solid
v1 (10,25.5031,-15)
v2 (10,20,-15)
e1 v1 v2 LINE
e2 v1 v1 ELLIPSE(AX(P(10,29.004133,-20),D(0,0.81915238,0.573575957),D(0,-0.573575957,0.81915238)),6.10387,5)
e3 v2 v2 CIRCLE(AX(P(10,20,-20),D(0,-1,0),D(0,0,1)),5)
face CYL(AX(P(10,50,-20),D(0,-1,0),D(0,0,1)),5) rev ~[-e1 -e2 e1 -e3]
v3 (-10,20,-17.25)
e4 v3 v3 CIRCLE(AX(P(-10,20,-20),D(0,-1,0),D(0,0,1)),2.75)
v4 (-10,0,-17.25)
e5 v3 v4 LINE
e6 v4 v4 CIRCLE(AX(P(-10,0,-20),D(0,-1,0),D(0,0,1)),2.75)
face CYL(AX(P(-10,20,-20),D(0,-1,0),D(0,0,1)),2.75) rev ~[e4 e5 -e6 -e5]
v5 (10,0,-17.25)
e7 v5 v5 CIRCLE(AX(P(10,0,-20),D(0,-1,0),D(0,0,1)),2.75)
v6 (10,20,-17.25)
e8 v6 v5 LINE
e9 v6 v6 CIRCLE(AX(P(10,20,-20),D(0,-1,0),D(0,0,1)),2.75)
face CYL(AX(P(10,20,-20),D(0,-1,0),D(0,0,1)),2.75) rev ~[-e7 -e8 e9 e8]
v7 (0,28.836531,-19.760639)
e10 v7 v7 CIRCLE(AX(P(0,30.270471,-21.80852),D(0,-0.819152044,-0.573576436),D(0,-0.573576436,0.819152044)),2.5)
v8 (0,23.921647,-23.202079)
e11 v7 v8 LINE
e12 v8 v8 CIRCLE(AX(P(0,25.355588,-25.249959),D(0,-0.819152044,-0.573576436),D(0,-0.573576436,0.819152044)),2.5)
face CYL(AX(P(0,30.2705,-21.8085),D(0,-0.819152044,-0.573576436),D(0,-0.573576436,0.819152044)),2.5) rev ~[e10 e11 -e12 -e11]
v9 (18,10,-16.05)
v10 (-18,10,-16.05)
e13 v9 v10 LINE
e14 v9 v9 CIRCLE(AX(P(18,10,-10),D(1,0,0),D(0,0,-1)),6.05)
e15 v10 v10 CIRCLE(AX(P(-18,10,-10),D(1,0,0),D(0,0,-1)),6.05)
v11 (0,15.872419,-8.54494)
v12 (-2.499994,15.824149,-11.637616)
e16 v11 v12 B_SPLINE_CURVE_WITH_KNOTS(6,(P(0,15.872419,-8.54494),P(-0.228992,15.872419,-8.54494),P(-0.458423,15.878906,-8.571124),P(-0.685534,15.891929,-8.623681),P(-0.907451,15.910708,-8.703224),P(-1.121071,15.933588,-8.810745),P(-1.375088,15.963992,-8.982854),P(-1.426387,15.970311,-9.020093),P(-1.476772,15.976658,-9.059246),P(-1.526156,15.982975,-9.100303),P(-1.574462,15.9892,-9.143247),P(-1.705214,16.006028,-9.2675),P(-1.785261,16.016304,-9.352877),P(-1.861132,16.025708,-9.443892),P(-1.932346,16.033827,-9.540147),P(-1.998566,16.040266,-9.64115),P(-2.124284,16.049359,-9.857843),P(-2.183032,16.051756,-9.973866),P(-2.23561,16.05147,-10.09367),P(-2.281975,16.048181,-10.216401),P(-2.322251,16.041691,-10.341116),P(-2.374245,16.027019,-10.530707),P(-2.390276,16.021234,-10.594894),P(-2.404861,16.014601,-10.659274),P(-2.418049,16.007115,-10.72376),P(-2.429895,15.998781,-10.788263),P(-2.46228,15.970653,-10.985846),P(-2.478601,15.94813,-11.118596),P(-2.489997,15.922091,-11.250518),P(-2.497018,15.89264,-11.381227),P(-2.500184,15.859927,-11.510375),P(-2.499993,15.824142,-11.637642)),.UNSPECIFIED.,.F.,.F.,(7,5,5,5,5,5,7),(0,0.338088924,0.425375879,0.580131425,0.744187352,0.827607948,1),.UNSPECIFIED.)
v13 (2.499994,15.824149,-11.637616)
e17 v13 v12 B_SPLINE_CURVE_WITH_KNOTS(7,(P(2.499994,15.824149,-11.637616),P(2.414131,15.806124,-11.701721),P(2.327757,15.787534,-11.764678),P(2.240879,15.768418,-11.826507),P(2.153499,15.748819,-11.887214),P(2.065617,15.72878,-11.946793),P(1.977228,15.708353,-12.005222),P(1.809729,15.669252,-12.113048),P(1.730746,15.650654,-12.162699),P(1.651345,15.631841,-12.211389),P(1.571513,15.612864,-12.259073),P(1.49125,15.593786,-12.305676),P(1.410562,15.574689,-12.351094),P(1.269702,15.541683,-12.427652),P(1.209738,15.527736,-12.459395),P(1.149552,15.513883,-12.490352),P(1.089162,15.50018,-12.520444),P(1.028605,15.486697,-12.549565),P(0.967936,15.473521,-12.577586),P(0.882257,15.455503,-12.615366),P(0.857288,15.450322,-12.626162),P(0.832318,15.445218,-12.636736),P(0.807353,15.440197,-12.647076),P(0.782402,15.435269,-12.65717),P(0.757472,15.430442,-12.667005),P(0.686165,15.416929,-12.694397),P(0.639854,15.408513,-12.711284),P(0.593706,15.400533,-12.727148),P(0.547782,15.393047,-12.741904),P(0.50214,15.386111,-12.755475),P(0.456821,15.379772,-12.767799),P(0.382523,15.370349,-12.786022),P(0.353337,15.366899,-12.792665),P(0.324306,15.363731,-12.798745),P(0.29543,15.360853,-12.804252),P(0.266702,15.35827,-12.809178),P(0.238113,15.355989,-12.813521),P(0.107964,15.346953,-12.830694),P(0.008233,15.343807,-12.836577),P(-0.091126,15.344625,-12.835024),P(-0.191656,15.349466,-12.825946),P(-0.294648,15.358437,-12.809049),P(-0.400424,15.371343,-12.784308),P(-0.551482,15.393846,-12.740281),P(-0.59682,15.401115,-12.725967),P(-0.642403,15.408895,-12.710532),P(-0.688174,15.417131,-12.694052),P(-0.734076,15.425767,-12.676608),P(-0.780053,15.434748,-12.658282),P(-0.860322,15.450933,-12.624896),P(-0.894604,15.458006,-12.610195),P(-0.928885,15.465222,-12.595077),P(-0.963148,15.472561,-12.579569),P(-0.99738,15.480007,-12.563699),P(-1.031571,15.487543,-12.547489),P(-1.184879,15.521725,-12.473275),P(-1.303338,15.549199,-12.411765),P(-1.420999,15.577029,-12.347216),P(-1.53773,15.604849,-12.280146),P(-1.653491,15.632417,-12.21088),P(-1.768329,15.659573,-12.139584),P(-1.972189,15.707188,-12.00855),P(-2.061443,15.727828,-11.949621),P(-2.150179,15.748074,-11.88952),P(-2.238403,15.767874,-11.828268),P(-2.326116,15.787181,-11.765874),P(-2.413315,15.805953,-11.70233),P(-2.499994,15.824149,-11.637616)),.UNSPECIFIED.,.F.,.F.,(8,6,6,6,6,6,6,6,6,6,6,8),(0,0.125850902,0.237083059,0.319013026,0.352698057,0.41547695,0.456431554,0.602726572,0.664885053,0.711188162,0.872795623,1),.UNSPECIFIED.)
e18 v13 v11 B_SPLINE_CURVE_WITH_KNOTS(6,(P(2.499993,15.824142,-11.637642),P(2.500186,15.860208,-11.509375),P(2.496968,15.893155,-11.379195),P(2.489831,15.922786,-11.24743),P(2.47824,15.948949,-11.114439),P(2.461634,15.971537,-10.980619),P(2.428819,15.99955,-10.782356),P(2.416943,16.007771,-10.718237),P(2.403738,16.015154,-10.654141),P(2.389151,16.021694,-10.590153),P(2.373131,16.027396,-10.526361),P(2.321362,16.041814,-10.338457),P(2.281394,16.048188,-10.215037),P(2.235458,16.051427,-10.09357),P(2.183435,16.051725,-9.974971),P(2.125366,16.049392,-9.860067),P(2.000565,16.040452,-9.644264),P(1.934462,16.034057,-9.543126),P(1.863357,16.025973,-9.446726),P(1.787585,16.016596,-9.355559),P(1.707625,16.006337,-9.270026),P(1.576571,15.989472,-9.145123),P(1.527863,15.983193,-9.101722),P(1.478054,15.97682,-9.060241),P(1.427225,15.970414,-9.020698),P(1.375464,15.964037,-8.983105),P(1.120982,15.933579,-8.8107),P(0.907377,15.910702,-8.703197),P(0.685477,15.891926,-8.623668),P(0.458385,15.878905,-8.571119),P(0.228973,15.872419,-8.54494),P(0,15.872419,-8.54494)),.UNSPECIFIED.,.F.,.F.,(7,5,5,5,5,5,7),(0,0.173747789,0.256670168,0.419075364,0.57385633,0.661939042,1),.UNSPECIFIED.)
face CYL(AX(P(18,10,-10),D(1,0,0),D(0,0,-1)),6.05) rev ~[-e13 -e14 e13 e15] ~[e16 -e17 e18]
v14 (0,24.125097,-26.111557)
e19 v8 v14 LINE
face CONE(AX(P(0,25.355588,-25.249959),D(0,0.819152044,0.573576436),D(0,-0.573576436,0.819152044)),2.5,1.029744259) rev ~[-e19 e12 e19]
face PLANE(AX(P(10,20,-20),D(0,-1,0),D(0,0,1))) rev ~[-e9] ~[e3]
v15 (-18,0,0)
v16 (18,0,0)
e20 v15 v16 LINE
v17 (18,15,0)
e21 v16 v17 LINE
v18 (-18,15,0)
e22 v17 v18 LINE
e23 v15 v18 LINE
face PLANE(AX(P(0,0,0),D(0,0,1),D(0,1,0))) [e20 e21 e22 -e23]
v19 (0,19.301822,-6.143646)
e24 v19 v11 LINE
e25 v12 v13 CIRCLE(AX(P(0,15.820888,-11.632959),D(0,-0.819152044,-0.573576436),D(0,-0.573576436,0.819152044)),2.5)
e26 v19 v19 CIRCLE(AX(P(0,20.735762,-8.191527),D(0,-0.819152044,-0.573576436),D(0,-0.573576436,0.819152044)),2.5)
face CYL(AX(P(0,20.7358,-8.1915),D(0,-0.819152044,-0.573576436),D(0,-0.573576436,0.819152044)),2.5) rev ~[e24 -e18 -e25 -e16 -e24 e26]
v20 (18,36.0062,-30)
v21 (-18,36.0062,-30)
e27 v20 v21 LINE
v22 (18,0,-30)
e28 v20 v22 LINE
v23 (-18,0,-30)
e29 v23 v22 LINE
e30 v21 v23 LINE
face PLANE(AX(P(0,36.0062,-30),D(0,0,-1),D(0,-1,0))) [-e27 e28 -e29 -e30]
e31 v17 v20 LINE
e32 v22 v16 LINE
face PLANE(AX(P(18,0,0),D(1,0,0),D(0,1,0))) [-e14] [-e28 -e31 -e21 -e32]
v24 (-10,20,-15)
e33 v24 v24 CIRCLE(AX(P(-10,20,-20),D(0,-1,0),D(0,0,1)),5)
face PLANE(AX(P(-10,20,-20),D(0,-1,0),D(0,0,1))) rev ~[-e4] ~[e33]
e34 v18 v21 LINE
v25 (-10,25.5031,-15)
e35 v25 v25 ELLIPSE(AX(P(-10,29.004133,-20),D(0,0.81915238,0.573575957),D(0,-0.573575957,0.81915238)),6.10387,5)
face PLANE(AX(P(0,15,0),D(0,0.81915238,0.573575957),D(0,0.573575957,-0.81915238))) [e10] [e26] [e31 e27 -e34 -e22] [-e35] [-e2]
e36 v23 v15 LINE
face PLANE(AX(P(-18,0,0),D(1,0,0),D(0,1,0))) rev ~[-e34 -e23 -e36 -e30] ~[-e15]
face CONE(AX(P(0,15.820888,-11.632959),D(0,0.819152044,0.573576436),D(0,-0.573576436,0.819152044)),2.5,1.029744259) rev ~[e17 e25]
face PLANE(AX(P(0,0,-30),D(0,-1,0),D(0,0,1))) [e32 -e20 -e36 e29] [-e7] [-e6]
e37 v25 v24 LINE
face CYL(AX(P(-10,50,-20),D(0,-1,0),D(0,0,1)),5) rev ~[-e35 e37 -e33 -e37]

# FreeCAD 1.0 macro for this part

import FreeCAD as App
import Part
import Sketcher

V = App.Vector
Q = App.Units.Quantity


def add_polygon(sketch, points):
    """Adds a closed chain of lines whose ends are joined by coincident constraints."""
    first, n = sketch.GeometryCount, len(points)
    for a, b in zip(points, points[1:] + points[:1]):
        sketch.addGeometry(Part.LineSegment(App.Vector(*a, 0), App.Vector(*b, 0)), False)
    for i in range(n):
        sketch.addConstraint(Sketcher.Constraint("Coincident", first + i, 2, first + (i + 1) % n, 1))

doc = App.newDocument("Part")
params = doc.addObject("Spreadsheet::Sheet", "Params")
for row, (alias, value) in enumerate([
    ("sketch1_width", "15 mm"),
    ("sketch1_height", "30 mm"),
    ("pad1_length", "36 mm"),
    ("sketch2_diameter", "5.5 mm"),
    ("hole_diameter", "5.5 mm"),
    ("hole_cbore_diameter", "10 mm"),
    ("hole_cbore_depth", "30 mm"),
    ("sketch3_diameter", "5 mm"),
    ("hole2_diameter", "5 mm"),
    ("hole2_depth", "6 mm"),
    ("sketch4_diameter", "12.1 mm"),
], start=1):
    params.set(f"A{row}", alias)
    params.set(f"B{row}", "=" + value)
    params.setAlias(f"B{row}", alias)

body = doc.addObject("PartDesign::Body", "Body")

# Sketch on YZ plane
sketch1 = doc.addObject("Sketcher::SketchObject", "Sketch")
body.addObject(sketch1)
sketch1.AttachmentSupport = (doc.YZ_Plane, [""])
sketch1.MapMode = "FlatFace"
add_polygon(sketch1, [(15, 0), (0, 0), (0, -30), (36, -30)])  # lines 0-3
sketch1.addConstraint([
    Sketcher.Constraint("Horizontal", 0),
    Sketcher.Constraint("Vertical", 1),
    Sketcher.Constraint("Horizontal", 2),
    Sketcher.Constraint("Coincident", 0, 2, -1, 1),
    Sketcher.Constraint("DistanceX", 0, 2, 0, 1, Q("15 mm")),
    Sketcher.Constraint("DistanceY", 1, 2, 1, 1, Q("30 mm")),
    Sketcher.Constraint("Angle", 3, Q("125 deg")),
])
sketch1.setExpression("Constraints[8]", "Params.sketch1_width")
sketch1.setExpression("Constraints[9]", "Params.sketch1_height")
pad1 = doc.addObject("PartDesign::Pad", "Pad")
body.addObject(pad1)
pad1.Profile = sketch1
pad1.setExpression("Length", "Params.pad1_length")
pad1.Midplane = True

# Sketch on XZ plane
sketch2 = doc.addObject("Sketcher::SketchObject", "Sketch001")
body.addObject(sketch2)
sketch2.AttachmentSupport = (doc.XZ_Plane, [""])
sketch2.MapMode = "FlatFace"
sketch2.AttachmentOffset = App.Placement(V(0, 0, -50), App.Rotation())
sketch2.addGeometry([
    Part.Circle(V(-10, -20, 0), V(0, 0, 1), 2.8),
    Part.Circle(V(10, -20, 0), V(0, 0, 1), 2.8),
], False)
sketch2.addConstraint([
    Sketcher.Constraint("Equal", 0, 1),
    Sketcher.Constraint("Symmetric", 0, 3, 1, 3, -2),
    Sketcher.Constraint("Diameter", 0, Q("5.5 mm")),
    Sketcher.Constraint("DistanceX", 0, 3, -1, 1, Q("10 mm")),
    Sketcher.Constraint("DistanceY", 0, 3, -1, 1, Q("20 mm")),
])
sketch2.setExpression("Constraints[2]", "Params.sketch2_diameter")
doc.recompute()
hole = doc.addObject("PartDesign::Hole", "Hole")
body.addObject(hole)
hole.Profile = sketch2
hole.ThreadType = "None"
hole.setExpression("Diameter", "Params.hole_diameter")
hole.DepthType = "ThroughAll"
hole.HoleCutType = "Counterbore"
hole.setExpression("HoleCutDiameter", "Params.hole_cbore_diameter")
hole.setExpression("HoleCutDepth", "Params.hole_cbore_depth")
hole.Reversed = True

# Sketch on an angled plane
sketch3 = doc.addObject("Sketcher::SketchObject", "Sketch002")
body.addObject(sketch3)
sketch3.Placement = App.Placement(V(0, 10.065167, 7.047706), App.Rotation(V(0, -0.573576436, 0.819152044), V(0.999999999, 0, 0), V(0, 0.819152044, 0.573576436), "ZXY"))
sketch3.addGeometry([
    Part.Circle(V(-35.2, 0, 0), V(0, 0, 1), 2.5),
    Part.Circle(V(-18.6, 0, 0), V(0, 0, 1), 2.5),
    Part.Circle(V(-35.2, 0, 0), V(0, 0, 1), 2.5),
    Part.Circle(V(-18.6, 0, 0), V(0, 0, 1), 2.5),
], False)
sketch3.addConstraint([
    Sketcher.Constraint("Coincident", 2, 3, 0, 3),
    Sketcher.Constraint("Coincident", 3, 3, 1, 3),
    Sketcher.Constraint("Equal", 0, 1),
    Sketcher.Constraint("Equal", 1, 2),
    Sketcher.Constraint("Equal", 2, 3),
    Sketcher.Constraint("PointOnObject", 0, 3, -1),
    Sketcher.Constraint("PointOnObject", 1, 3, -1),
    Sketcher.Constraint("Diameter", 0, Q("5 mm")),
    Sketcher.Constraint("DistanceX", 0, 3, -1, 1, Q("35.227 mm")),
    Sketcher.Constraint("DistanceX", 1, 3, -1, 1, Q("18.6037 mm")),
])
sketch3.setExpression("Constraints[7]", "Params.sketch3_diameter")
doc.recompute()
hole2 = doc.addObject("PartDesign::Hole", "Hole001")
body.addObject(hole2)
hole2.Profile = sketch3
hole2.ThreadType = "None"
hole2.setExpression("Diameter", "Params.hole2_diameter")
hole2.DepthType = "Dimension"
hole2.setExpression("Depth", "Params.hole2_depth")
hole2.DrillPoint = "Angled"
hole2.DrillPointAngle = 118

# Sketch on YZ plane
sketch4 = doc.addObject("Sketcher::SketchObject", "Sketch003")
body.addObject(sketch4)
sketch4.AttachmentSupport = (doc.YZ_Plane, [""])
sketch4.MapMode = "FlatFace"
sketch4.AttachmentOffset = App.Placement(V(0, 0, 18), App.Rotation())
sketch4.addGeometry(Part.Circle(V(10, -10, 0), V(0, 0, 1), 6), False)
sketch4.addConstraint([
    Sketcher.Constraint("Diameter", 0, Q("12.1 mm")),
    Sketcher.Constraint("DistanceX", -1, 1, 0, 3, Q("10 mm")),
    Sketcher.Constraint("DistanceY", 0, 3, -1, 1, Q("10 mm")),
])
sketch4.setExpression("Constraints[0]", "Params.sketch4_diameter")
pocket1 = doc.addObject("PartDesign::Pocket", "Pocket")
body.addObject(pocket1)
pocket1.Profile = sketch4
pocket1.Type = "ThroughAll"

doc.recompute()
